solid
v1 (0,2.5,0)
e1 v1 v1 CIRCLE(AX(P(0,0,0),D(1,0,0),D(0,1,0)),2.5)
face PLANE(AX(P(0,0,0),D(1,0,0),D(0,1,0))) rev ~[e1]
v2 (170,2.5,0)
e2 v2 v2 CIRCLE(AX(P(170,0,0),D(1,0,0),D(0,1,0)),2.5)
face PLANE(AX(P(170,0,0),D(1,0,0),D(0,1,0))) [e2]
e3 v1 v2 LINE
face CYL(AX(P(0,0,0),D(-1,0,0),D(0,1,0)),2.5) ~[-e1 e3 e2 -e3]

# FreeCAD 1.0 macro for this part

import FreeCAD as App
import Part
import Sketcher

V = App.Vector

doc = App.newDocument("Part")
body = doc.addObject("PartDesign::Body", "Body")

# Sketch on YZ plane
sketch1 = doc.addObject("Sketcher::SketchObject", "Sketch")
body.addObject(sketch1)
sketch1.AttachmentSupport = (doc.YZ_Plane, [""])
sketch1.MapMode = "FlatFace"
sketch1.addGeometry(Part.Circle(V(0, 0, 0), V(0, 0, 1), 2.5), False)
sketch1.addConstraint([
    Sketcher.Constraint("Coincident", 0, 3, -1, 1),
    Sketcher.Constraint("Diameter", 0, 5.0),
])
pad1 = doc.addObject("PartDesign::Pad", "Pad")
body.addObject(pad1)
pad1.Profile = sketch1
pad1.Length = 170

doc.recompute()
